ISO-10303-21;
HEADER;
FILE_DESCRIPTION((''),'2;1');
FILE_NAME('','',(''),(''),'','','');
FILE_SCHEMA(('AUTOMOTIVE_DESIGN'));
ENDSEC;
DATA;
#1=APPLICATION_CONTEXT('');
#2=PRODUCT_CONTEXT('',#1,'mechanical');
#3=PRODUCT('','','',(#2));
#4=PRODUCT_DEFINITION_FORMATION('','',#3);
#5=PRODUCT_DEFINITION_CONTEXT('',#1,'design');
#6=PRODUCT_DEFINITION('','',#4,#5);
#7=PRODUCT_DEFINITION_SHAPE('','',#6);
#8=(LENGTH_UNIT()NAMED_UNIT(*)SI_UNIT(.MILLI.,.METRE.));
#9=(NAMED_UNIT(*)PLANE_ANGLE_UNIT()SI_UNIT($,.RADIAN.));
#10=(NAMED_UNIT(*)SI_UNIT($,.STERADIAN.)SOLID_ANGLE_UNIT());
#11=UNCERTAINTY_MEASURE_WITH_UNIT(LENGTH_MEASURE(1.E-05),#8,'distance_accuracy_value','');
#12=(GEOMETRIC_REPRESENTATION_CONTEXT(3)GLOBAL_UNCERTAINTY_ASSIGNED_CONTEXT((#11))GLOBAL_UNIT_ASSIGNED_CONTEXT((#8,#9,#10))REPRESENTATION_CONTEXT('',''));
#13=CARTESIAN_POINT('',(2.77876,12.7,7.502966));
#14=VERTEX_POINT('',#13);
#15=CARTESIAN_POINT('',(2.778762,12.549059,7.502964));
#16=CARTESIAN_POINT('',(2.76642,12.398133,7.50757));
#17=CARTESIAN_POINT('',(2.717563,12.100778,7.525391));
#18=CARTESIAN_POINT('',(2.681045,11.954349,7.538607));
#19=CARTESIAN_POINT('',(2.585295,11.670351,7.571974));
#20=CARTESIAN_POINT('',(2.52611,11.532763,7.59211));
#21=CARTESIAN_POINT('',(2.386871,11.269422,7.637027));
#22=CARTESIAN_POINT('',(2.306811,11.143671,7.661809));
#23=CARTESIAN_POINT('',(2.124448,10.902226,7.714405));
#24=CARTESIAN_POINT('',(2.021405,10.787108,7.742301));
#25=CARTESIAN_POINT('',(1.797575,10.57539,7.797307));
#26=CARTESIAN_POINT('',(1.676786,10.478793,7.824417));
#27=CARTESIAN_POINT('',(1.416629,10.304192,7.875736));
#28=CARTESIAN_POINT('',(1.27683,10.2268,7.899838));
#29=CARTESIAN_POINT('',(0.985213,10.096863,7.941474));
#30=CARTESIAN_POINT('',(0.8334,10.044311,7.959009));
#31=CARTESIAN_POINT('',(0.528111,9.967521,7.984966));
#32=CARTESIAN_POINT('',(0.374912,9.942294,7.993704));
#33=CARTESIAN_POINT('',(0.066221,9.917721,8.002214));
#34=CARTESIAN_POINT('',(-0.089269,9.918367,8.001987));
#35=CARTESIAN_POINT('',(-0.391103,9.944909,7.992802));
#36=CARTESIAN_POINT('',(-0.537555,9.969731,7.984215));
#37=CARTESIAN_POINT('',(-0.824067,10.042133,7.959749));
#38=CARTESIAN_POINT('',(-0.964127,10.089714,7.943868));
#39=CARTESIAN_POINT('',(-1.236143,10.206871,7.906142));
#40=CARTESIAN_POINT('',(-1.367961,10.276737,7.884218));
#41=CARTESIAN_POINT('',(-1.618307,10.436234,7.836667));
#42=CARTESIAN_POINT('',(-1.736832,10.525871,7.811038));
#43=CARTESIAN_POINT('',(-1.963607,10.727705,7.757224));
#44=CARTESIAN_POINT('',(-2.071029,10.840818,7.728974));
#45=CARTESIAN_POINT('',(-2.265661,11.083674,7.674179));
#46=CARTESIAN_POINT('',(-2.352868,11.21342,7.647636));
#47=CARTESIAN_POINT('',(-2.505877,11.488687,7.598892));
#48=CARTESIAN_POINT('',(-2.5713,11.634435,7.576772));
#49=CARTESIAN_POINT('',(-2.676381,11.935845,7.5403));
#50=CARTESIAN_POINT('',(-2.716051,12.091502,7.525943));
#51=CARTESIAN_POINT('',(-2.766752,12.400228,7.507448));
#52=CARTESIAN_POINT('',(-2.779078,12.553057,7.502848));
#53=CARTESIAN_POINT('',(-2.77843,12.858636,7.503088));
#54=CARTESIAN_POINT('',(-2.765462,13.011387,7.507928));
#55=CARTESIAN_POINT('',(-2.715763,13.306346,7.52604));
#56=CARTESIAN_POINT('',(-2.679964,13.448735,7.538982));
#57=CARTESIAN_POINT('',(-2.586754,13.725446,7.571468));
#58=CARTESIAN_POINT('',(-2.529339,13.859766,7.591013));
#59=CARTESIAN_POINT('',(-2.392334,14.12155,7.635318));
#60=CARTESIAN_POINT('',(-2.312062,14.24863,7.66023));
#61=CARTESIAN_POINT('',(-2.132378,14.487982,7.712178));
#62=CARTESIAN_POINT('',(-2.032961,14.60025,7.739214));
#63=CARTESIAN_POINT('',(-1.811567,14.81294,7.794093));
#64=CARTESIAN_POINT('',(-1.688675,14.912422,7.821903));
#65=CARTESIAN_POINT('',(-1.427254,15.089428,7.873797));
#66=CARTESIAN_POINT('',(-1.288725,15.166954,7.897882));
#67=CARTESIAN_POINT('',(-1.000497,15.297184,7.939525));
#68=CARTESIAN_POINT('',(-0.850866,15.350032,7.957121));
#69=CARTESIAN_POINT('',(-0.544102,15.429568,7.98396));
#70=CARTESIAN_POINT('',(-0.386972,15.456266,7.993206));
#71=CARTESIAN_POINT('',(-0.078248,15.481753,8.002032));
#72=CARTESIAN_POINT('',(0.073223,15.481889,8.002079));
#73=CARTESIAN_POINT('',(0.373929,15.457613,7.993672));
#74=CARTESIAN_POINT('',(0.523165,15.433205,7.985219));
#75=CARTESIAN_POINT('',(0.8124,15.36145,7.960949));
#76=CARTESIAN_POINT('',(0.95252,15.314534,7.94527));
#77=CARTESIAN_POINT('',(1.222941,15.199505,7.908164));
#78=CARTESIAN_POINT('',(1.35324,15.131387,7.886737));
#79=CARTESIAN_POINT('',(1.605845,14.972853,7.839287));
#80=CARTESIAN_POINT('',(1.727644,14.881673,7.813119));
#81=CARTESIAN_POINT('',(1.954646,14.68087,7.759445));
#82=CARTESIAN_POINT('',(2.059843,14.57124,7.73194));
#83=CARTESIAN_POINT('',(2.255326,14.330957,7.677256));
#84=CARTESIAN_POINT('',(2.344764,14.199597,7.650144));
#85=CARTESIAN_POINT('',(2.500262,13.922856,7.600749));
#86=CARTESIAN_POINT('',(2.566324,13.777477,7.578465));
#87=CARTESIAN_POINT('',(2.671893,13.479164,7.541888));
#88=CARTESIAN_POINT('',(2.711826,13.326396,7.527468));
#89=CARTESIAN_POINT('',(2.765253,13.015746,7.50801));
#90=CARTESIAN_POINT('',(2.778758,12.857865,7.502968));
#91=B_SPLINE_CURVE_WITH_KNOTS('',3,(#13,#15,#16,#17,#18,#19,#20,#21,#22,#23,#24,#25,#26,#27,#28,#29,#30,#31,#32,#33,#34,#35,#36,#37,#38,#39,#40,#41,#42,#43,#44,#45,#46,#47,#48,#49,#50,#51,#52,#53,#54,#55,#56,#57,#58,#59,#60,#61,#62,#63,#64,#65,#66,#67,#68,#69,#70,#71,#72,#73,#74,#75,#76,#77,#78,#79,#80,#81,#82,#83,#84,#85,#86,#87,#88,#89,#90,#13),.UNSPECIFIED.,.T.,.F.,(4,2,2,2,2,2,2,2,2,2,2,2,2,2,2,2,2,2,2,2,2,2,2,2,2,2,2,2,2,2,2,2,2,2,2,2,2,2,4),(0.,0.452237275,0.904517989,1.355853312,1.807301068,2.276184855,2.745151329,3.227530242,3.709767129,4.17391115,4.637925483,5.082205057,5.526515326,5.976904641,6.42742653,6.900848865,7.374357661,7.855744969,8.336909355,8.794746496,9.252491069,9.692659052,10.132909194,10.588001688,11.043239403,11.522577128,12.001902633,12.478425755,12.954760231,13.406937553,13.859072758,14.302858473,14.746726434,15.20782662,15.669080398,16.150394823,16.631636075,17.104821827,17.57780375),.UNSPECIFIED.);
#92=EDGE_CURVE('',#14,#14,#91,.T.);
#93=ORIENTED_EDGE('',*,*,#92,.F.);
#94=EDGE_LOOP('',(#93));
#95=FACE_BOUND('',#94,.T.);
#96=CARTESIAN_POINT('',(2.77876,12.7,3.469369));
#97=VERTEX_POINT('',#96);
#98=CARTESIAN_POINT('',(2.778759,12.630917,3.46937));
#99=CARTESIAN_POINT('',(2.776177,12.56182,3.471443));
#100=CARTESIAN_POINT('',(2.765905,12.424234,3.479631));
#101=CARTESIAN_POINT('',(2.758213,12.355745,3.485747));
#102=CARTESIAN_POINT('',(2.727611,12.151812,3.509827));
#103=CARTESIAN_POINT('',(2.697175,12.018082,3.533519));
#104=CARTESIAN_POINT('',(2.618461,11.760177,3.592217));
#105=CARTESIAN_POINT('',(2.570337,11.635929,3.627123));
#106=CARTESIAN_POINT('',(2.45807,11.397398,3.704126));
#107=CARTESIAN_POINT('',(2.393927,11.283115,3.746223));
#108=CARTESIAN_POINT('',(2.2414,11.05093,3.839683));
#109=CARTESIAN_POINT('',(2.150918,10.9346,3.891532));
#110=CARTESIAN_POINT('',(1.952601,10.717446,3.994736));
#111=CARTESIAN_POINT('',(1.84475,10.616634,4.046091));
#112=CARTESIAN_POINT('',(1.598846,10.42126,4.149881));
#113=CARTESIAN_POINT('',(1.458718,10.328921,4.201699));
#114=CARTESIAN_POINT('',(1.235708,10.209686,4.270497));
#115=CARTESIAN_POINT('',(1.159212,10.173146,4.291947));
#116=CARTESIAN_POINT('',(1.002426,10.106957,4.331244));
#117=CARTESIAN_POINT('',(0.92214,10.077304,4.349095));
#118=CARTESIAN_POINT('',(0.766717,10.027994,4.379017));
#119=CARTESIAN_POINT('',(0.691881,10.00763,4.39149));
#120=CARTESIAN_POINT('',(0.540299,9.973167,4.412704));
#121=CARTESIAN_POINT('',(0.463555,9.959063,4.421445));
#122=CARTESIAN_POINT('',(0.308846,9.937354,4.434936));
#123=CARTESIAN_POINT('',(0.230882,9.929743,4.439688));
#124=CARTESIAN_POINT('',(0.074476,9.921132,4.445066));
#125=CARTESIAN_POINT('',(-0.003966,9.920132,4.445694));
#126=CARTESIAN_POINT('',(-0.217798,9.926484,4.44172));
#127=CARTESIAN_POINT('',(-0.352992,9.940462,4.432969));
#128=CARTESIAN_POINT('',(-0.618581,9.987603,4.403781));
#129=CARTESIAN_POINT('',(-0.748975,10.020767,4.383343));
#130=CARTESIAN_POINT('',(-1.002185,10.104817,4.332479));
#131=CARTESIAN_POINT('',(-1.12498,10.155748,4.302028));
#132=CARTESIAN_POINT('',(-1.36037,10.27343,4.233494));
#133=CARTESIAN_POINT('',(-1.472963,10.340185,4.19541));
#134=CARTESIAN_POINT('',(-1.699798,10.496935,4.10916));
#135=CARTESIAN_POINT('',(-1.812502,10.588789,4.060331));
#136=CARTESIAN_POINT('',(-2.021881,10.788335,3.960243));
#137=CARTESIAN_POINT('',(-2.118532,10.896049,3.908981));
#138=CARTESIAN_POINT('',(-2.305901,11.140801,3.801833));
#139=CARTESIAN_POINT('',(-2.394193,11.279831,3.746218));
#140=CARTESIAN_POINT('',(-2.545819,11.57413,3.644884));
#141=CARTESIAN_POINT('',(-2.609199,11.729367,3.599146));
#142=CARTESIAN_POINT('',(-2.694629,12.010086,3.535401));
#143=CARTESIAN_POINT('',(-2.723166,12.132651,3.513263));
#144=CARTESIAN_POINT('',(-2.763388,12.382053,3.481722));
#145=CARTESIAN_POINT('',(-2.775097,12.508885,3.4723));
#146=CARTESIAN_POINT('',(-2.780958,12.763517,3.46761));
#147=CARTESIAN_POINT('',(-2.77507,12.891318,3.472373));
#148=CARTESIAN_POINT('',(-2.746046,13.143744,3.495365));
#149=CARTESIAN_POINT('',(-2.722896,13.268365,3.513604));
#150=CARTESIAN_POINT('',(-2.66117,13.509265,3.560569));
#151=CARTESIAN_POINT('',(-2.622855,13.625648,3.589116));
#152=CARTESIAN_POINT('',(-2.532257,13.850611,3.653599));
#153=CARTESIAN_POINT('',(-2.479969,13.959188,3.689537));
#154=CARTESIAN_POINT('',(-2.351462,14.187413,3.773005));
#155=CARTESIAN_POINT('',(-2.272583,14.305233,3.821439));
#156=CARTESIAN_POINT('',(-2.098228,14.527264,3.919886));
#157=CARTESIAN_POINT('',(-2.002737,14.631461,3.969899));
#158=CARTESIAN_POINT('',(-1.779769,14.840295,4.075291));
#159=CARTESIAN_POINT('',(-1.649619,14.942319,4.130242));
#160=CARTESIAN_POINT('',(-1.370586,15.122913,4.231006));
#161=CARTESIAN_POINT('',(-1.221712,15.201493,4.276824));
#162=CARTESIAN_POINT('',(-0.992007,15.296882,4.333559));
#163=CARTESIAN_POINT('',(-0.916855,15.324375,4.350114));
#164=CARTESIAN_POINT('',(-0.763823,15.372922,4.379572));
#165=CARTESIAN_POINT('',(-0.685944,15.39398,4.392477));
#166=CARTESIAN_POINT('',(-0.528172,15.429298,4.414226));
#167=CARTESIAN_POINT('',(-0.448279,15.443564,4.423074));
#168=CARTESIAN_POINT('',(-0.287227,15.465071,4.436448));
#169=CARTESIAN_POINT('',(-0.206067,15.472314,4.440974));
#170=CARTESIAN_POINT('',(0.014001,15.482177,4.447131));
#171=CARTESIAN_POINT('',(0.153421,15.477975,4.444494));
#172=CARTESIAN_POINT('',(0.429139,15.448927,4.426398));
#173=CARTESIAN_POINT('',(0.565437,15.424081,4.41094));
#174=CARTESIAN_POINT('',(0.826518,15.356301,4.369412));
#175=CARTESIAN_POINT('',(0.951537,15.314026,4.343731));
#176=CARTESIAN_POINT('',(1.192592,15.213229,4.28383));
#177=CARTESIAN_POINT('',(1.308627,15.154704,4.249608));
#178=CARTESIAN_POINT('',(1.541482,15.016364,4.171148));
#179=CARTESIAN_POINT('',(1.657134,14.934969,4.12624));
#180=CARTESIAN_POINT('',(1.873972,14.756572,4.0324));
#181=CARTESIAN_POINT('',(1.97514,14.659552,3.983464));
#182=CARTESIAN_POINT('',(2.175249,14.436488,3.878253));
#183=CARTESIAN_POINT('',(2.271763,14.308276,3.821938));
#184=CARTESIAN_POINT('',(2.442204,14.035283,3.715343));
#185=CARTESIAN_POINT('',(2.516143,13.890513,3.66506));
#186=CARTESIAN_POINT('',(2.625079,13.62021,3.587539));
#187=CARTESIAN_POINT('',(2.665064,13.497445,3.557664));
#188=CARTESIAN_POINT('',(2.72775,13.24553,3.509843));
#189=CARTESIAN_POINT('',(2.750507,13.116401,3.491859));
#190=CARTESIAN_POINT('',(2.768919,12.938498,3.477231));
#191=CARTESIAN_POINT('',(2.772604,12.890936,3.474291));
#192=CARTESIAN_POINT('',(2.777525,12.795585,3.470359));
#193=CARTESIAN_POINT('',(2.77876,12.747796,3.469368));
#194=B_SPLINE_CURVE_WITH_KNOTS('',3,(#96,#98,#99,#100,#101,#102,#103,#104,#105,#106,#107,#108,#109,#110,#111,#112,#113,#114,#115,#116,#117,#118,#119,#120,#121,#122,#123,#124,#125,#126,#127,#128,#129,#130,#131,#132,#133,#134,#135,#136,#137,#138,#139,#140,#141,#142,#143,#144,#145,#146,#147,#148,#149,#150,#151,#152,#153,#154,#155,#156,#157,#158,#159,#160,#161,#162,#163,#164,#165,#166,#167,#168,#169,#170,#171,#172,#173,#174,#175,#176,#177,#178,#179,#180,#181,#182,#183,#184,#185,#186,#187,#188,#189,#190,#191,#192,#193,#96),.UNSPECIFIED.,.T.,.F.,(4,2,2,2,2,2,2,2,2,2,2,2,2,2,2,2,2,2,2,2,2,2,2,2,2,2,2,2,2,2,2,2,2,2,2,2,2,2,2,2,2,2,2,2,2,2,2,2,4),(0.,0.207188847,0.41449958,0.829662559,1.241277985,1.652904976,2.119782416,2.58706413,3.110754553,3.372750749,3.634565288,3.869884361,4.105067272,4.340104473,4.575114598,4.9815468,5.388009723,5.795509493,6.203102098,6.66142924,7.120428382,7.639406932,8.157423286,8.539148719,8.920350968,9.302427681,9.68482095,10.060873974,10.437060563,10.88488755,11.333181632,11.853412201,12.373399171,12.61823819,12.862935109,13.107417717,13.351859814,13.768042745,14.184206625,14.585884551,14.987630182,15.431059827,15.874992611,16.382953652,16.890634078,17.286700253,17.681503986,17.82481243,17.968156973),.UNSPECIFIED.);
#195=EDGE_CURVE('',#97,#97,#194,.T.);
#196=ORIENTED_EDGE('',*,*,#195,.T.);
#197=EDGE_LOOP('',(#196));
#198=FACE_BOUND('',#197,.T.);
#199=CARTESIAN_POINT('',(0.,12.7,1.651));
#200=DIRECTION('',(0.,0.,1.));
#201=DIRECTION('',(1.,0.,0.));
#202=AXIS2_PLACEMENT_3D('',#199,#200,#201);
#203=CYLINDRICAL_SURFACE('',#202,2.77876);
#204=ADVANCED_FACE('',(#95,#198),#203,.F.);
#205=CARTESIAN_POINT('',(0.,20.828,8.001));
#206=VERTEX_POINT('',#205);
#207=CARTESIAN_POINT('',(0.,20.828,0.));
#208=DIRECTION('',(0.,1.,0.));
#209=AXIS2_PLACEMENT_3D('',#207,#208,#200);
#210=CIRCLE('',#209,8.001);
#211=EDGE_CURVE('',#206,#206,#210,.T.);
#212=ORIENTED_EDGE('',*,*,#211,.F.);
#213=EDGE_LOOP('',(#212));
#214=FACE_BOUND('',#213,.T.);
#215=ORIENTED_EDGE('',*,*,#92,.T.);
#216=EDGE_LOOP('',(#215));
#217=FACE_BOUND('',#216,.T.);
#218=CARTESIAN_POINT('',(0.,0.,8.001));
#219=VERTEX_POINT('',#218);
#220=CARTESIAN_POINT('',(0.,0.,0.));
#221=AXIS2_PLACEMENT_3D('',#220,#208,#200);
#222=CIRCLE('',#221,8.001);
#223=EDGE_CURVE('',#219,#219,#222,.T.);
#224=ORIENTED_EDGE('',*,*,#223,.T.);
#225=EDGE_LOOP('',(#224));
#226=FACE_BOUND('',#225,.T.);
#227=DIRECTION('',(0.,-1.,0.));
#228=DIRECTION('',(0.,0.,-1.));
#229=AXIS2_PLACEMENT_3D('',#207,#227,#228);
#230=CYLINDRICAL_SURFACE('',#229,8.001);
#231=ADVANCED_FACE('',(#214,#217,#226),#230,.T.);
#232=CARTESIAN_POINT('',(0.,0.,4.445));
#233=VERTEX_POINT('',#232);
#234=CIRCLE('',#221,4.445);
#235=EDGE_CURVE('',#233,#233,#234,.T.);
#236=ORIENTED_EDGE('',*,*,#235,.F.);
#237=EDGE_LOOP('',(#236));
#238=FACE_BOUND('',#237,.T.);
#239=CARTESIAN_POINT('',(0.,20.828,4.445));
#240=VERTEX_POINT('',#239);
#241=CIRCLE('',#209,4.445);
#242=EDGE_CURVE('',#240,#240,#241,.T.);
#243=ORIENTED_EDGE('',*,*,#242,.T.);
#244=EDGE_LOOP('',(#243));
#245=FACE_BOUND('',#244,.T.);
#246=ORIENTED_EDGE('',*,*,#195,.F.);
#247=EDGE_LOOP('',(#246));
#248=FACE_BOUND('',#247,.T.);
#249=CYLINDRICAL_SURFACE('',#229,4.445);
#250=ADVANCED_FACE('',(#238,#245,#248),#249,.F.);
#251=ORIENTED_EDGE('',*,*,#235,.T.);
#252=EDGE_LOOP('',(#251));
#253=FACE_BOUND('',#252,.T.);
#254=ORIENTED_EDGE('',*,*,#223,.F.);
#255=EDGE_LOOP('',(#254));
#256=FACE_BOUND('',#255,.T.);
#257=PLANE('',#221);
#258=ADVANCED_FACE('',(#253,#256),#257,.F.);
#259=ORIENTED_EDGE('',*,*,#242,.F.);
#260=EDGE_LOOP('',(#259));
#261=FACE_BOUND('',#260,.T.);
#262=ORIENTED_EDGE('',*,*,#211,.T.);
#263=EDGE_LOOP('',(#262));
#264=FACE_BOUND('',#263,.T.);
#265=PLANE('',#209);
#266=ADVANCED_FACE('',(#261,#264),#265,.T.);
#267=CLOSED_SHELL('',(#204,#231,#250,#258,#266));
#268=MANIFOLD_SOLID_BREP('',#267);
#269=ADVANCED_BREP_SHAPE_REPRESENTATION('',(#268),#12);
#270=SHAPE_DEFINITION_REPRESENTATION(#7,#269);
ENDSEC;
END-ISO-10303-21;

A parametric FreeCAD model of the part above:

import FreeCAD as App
import Part
import Sketcher
from FreeCAD import Vector
Q = App.Units.Quantity

doc = App.newDocument("Part")
body = doc.addObject("PartDesign::Body", "Body")

# Sketch on XZ plane
sketch1 = body.newObject("Sketcher::SketchObject", "Sketch")
sketch1.AttachmentSupport = (doc.getObject("XZ_Plane"), [""])
sketch1.MapMode = "FlatFace"
sketch1.addGeometry(Part.Circle(Vector(0, 0, 0), Vector(0, 0, 1), 8), False)
sketch1.addGeometry(Part.Circle(Vector(0, 0, 0), Vector(0, 0, 1), 4.4), False)
sketch1.addConstraint(Sketcher.Constraint("Coincident", 0, 3, -1, 1))
sketch1.addConstraint(Sketcher.Constraint("Coincident", 1, 3, -1, 1))
sketch1.addConstraint(Sketcher.Constraint("Diameter", 0, Q("0.63 in")))
sketch1.addConstraint(Sketcher.Constraint("Diameter", 1, Q("0.35 in")))
pad1 = body.newObject("PartDesign::Pad", "Pad")
pad1.Profile = sketch1
pad1.Length = Q("0.82 in")
pad1.Reversed = True

# Sketch on XY plane
sketch2 = body.newObject("Sketcher::SketchObject", "Sketch001")
sketch2.AttachmentSupport = (doc.getObject("XY_Plane"), [""])
sketch2.MapMode = "FlatFace"
sketch2.AttachmentOffset = App.Placement(Vector(0, 0, 0.315 * 25.4), App.Rotation())
sketch2.addGeometry(Part.Circle(Vector(0, 12.7, 0), Vector(0, 0, 1), 2.8), False)
sketch2.addConstraint(Sketcher.Constraint("PointOnObject", 0, 3, -2))
sketch2.addConstraint(Sketcher.Constraint("Diameter", 0, Q("0.2188 in")))
sketch2.addConstraint(Sketcher.Constraint("DistanceY", -1, 1, 0, 3, Q("0.5 in")))
pocket1 = body.newObject("PartDesign::Pocket", "Pocket")
pocket1.Profile = sketch2
pocket1.Length = Q("0.25 in")

doc.recompute()
